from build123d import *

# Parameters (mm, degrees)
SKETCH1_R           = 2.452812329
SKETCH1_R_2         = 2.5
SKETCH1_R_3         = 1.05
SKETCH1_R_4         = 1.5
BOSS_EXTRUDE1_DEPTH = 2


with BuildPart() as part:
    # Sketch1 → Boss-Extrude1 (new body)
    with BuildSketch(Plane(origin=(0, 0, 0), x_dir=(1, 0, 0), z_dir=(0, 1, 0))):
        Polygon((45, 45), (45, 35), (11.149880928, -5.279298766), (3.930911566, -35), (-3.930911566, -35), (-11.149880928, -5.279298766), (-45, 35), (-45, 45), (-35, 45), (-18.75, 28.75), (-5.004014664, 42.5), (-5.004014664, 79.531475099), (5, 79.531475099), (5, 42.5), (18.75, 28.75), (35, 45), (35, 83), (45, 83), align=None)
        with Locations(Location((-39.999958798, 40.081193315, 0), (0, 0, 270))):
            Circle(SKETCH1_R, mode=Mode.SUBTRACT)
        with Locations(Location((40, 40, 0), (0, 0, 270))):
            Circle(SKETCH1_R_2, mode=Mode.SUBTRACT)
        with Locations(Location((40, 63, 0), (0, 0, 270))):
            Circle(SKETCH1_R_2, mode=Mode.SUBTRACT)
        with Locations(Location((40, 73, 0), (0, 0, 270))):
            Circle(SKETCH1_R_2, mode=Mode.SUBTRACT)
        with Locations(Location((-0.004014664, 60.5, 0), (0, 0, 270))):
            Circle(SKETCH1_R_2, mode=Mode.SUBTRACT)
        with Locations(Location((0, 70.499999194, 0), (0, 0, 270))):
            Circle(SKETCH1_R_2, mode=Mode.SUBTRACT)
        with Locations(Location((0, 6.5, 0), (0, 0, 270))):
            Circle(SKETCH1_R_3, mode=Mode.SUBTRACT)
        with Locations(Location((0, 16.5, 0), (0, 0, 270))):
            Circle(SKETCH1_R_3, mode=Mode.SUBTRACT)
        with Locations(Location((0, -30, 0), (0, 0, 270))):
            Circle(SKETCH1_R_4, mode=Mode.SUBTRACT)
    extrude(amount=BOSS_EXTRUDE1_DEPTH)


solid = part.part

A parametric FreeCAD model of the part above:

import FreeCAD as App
import Part
import Sketcher

V = App.Vector
Q = App.Units.Quantity

doc = App.newDocument("Part")
body = doc.addObject("PartDesign::Body", "Body")

# Sketch on XZ plane
sketch1 = body.newObject("Sketcher::SketchObject", "Sketch")
sketch1.AttachmentSupport = (doc.getObject("XZ_Plane"), [""])
sketch1.MapMode = "FlatFace"
sketch1.addGeometry([
    Part.LineSegment(V(45, -35, 0), V(45, -83, 0)),  # 0
    Part.LineSegment(V(45, -83, 0), V(35, -83, 0)),  # 1
    Part.LineSegment(V(35, -83, 0), V(35, -45, 0)),  # 2
    Part.LineSegment(V(35, -45, 0), V(18.75, -28.75, 0)),  # 3
    Part.LineSegment(V(18.75, -28.75, 0), V(5, -42.5, 0)),  # 4
    Part.LineSegment(V(5, -42.5, 0), V(5, -79.531475, 0)),  # 5
    Part.LineSegment(V(5, -79.531475, 0), V(-5.004015, -79.531475, 0)),  # 6
    Part.LineSegment(V(-5.004015, -79.531475, 0), V(-5.004015, -42.5, 0)),  # 7
    Part.LineSegment(V(-5.004015, -42.5, 0), V(-18.75, -28.75, 0)),  # 8
    Part.LineSegment(V(-18.75, -28.75, 0), V(-35, -45, 0)),  # 9
    Part.LineSegment(V(-35, -45, 0), V(-45, -45, 0)),  # 10
    Part.LineSegment(V(-45, -45, 0), V(-45, -35, 0)),  # 11
    Part.LineSegment(V(-45, -35, 0), V(-11.149881, 5.279299, 0)),  # 12
    Part.LineSegment(V(-11.149881, 5.279299, 0), V(-3.930912, 35, 0)),  # 13
    Part.LineSegment(V(-3.930912, 35, 0), V(3.930912, 35, 0)),  # 14
    Part.LineSegment(V(3.930912, 35, 0), V(11.149881, 5.279299, 0)),  # 15
    Part.LineSegment(V(11.149881, 5.279299, 0), V(45, -35, 0)),  # 16
    Part.Circle(V(0, 30, 0), V(0, 0, 1), 1.5),  # 17
    Part.Circle(V(0, -6.5, 0), V(0, 0, 1), 1.05),  # 18
    Part.Circle(V(0, -16.5, 0), V(0, 0, 1), 1.05),  # 19
    Part.Circle(V(40, -40, 0), V(0, 0, 1), 2.5),  # 20
    Part.Circle(V(40, -63, 0), V(0, 0, 1), 2.5),  # 21
    Part.Circle(V(40, -73, 0), V(0, 0, 1), 2.5),  # 22
    Part.Circle(V(-39.999959, -40.081193, 0), V(0, 0, 1), 2.452812),  # 23
    Part.Circle(V(-0.004015, -60.5, 0), V(0, 0, 1), 2.5),  # 24
    Part.Circle(V(0, -70.499999, 0), V(0, 0, 1), 2.5),  # 25
], False)
sketch1.addConstraint([
    Sketcher.Constraint("Coincident", 0, 2, 1, 1),
    Sketcher.Constraint("Coincident", 1, 2, 2, 1),
    Sketcher.Constraint("Coincident", 2, 2, 3, 1),
    Sketcher.Constraint("Coincident", 3, 2, 4, 1),
    Sketcher.Constraint("Coincident", 4, 2, 5, 1),
    Sketcher.Constraint("Coincident", 5, 2, 6, 1),
    Sketcher.Constraint("Coincident", 6, 2, 7, 1),
    Sketcher.Constraint("Coincident", 7, 2, 8, 1),
    Sketcher.Constraint("Coincident", 8, 2, 9, 1),
    Sketcher.Constraint("Coincident", 9, 2, 10, 1),
    Sketcher.Constraint("Coincident", 10, 2, 11, 1),
    Sketcher.Constraint("Coincident", 11, 2, 12, 1),
    Sketcher.Constraint("Coincident", 12, 2, 13, 1),
    Sketcher.Constraint("Coincident", 13, 2, 14, 1),
    Sketcher.Constraint("Coincident", 14, 2, 15, 1),
    Sketcher.Constraint("Coincident", 15, 2, 16, 1),
    Sketcher.Constraint("Coincident", 16, 2, 0, 1),
    Sketcher.Constraint("Vertical", 0),
    Sketcher.Constraint("Horizontal", 1),
    Sketcher.Constraint("Vertical", 2),
    Sketcher.Constraint("Vertical", 5),
    Sketcher.Constraint("Horizontal", 6),
    Sketcher.Constraint("Vertical", 7),
    Sketcher.Constraint("Horizontal", 10),
    Sketcher.Constraint("Vertical", 11),
    Sketcher.Constraint("Horizontal", 14),
    Sketcher.Constraint("Equal", 18, 19),
    Sketcher.Constraint("Equal", 20, 21),
    Sketcher.Constraint("Equal", 21, 22),
    Sketcher.Constraint("Equal", 22, 24),
    Sketcher.Constraint("Equal", 24, 25),
    Sketcher.Constraint("Symmetric", 3, 2, 8, 2, -2),
    Sketcher.Constraint("Symmetric", 2, 2, 9, 2, -2),
    Sketcher.Constraint("Symmetric", 12, 2, 15, 2, -2),
    Sketcher.Constraint("Symmetric", 11, 2, 16, 2, -2),
    Sketcher.Constraint("PointOnObject", 17, 3, -2),
    Sketcher.Constraint("PointOnObject", 18, 3, -2),
    Sketcher.Constraint("PointOnObject", 19, 3, -2),
    Sketcher.Constraint("PointOnObject", 25, 3, -2),
    Sketcher.Constraint("Perpendicular", 3, 4),
    Sketcher.Constraint("Parallel", 4, 9),
    Sketcher.Constraint("Horizontal", 4, 2, 7, 2),
    Sketcher.Constraint("Vertical", 20, 3, 21, 3),
    Sketcher.Constraint("Vertical", 21, 3, 22, 3),
    Sketcher.Constraint("Equal", 10, 11),
    Sketcher.Constraint("Equal", 13, 15),
    Sketcher.Constraint("Diameter", 17, Q("3 mm")),
    Sketcher.Constraint("Diameter", 20, Q("5 mm")),
    Sketcher.Constraint("Diameter", 18, Q("2.1 mm")),
    Sketcher.Constraint("DistanceX", 1, 2, 1, 1, Q("10 mm")),
    Sketcher.Constraint("DistanceY", 0, 2, 0, 1, Q("48 mm")),
    Sketcher.Constraint("DistanceY", -1, 1, 17, 3, Q("30 mm")),
    Sketcher.Constraint("DistanceX", -1, 1, 20, 3, Q("40 mm")),
    Sketcher.Constraint("DistanceY", 20, 3, -1, 1, Q("40 mm")),
    Sketcher.Constraint("DistanceY", 21, 3, -1, 1, Q("63 mm")),
    Sketcher.Constraint("DistanceY", 22, 3, -1, 1, Q("73 mm")),
    Sketcher.Constraint("DistanceX", -1, 1, 0, 2, Q("45 mm")),
    Sketcher.Constraint("DistanceY", 0, 2, -1, 1, Q("83 mm")),
    Sketcher.Constraint("DistanceX", -1, 1, 4, 2, Q("5 mm")),
    Sketcher.Constraint("DistanceY", -1, 1, 13, 2, Q("35 mm")),
    Sketcher.Constraint("DistanceY", 19, 3, 18, 3, Q("10 mm")),
    Sketcher.Constraint("DistanceY", 24, 3, 19, 3, Q("44 mm")),
    Sketcher.Constraint("DistanceY", 25, 3, 24, 3, Q("9.999999 mm")),
    Sketcher.Constraint("DistanceY", 24, 3, 4, 2, Q("18 mm")),
    Sketcher.Constraint("DistanceX", 6, 2, 24, 3, Q("5 mm")),
    Sketcher.Constraint("DistanceY", 18, 3, -1, 1, Q("6.5 mm")),
    Sketcher.Constraint("Diameter", 23, Q("4.905625 mm")),
    Sketcher.Constraint("DistanceY", -1, 1, 12, 2, Q("5.279299 mm")),
    Sketcher.Constraint("Distance", 13, Q("30.584859 mm")),
    Sketcher.Constraint("DistanceX", 6, 2, 6, 1, Q("10.004015 mm")),
    Sketcher.Constraint("DistanceX", 14, 1, 14, 2, Q("7.861823 mm")),
    Sketcher.Constraint("DistanceY", 5, 2, 5, 1, Q("37.031475 mm")),
    Sketcher.Constraint("DistanceX", 23, 3, -1, 1, Q("39.999959 mm")),
    Sketcher.Constraint("DistanceY", 23, 3, -1, 1, Q("40.081193 mm")),
])
pad1 = body.newObject("PartDesign::Pad", "Pad")
pad1.Profile = sketch1
pad1.Length = 2
pad1.Reversed = True

doc.recompute()
